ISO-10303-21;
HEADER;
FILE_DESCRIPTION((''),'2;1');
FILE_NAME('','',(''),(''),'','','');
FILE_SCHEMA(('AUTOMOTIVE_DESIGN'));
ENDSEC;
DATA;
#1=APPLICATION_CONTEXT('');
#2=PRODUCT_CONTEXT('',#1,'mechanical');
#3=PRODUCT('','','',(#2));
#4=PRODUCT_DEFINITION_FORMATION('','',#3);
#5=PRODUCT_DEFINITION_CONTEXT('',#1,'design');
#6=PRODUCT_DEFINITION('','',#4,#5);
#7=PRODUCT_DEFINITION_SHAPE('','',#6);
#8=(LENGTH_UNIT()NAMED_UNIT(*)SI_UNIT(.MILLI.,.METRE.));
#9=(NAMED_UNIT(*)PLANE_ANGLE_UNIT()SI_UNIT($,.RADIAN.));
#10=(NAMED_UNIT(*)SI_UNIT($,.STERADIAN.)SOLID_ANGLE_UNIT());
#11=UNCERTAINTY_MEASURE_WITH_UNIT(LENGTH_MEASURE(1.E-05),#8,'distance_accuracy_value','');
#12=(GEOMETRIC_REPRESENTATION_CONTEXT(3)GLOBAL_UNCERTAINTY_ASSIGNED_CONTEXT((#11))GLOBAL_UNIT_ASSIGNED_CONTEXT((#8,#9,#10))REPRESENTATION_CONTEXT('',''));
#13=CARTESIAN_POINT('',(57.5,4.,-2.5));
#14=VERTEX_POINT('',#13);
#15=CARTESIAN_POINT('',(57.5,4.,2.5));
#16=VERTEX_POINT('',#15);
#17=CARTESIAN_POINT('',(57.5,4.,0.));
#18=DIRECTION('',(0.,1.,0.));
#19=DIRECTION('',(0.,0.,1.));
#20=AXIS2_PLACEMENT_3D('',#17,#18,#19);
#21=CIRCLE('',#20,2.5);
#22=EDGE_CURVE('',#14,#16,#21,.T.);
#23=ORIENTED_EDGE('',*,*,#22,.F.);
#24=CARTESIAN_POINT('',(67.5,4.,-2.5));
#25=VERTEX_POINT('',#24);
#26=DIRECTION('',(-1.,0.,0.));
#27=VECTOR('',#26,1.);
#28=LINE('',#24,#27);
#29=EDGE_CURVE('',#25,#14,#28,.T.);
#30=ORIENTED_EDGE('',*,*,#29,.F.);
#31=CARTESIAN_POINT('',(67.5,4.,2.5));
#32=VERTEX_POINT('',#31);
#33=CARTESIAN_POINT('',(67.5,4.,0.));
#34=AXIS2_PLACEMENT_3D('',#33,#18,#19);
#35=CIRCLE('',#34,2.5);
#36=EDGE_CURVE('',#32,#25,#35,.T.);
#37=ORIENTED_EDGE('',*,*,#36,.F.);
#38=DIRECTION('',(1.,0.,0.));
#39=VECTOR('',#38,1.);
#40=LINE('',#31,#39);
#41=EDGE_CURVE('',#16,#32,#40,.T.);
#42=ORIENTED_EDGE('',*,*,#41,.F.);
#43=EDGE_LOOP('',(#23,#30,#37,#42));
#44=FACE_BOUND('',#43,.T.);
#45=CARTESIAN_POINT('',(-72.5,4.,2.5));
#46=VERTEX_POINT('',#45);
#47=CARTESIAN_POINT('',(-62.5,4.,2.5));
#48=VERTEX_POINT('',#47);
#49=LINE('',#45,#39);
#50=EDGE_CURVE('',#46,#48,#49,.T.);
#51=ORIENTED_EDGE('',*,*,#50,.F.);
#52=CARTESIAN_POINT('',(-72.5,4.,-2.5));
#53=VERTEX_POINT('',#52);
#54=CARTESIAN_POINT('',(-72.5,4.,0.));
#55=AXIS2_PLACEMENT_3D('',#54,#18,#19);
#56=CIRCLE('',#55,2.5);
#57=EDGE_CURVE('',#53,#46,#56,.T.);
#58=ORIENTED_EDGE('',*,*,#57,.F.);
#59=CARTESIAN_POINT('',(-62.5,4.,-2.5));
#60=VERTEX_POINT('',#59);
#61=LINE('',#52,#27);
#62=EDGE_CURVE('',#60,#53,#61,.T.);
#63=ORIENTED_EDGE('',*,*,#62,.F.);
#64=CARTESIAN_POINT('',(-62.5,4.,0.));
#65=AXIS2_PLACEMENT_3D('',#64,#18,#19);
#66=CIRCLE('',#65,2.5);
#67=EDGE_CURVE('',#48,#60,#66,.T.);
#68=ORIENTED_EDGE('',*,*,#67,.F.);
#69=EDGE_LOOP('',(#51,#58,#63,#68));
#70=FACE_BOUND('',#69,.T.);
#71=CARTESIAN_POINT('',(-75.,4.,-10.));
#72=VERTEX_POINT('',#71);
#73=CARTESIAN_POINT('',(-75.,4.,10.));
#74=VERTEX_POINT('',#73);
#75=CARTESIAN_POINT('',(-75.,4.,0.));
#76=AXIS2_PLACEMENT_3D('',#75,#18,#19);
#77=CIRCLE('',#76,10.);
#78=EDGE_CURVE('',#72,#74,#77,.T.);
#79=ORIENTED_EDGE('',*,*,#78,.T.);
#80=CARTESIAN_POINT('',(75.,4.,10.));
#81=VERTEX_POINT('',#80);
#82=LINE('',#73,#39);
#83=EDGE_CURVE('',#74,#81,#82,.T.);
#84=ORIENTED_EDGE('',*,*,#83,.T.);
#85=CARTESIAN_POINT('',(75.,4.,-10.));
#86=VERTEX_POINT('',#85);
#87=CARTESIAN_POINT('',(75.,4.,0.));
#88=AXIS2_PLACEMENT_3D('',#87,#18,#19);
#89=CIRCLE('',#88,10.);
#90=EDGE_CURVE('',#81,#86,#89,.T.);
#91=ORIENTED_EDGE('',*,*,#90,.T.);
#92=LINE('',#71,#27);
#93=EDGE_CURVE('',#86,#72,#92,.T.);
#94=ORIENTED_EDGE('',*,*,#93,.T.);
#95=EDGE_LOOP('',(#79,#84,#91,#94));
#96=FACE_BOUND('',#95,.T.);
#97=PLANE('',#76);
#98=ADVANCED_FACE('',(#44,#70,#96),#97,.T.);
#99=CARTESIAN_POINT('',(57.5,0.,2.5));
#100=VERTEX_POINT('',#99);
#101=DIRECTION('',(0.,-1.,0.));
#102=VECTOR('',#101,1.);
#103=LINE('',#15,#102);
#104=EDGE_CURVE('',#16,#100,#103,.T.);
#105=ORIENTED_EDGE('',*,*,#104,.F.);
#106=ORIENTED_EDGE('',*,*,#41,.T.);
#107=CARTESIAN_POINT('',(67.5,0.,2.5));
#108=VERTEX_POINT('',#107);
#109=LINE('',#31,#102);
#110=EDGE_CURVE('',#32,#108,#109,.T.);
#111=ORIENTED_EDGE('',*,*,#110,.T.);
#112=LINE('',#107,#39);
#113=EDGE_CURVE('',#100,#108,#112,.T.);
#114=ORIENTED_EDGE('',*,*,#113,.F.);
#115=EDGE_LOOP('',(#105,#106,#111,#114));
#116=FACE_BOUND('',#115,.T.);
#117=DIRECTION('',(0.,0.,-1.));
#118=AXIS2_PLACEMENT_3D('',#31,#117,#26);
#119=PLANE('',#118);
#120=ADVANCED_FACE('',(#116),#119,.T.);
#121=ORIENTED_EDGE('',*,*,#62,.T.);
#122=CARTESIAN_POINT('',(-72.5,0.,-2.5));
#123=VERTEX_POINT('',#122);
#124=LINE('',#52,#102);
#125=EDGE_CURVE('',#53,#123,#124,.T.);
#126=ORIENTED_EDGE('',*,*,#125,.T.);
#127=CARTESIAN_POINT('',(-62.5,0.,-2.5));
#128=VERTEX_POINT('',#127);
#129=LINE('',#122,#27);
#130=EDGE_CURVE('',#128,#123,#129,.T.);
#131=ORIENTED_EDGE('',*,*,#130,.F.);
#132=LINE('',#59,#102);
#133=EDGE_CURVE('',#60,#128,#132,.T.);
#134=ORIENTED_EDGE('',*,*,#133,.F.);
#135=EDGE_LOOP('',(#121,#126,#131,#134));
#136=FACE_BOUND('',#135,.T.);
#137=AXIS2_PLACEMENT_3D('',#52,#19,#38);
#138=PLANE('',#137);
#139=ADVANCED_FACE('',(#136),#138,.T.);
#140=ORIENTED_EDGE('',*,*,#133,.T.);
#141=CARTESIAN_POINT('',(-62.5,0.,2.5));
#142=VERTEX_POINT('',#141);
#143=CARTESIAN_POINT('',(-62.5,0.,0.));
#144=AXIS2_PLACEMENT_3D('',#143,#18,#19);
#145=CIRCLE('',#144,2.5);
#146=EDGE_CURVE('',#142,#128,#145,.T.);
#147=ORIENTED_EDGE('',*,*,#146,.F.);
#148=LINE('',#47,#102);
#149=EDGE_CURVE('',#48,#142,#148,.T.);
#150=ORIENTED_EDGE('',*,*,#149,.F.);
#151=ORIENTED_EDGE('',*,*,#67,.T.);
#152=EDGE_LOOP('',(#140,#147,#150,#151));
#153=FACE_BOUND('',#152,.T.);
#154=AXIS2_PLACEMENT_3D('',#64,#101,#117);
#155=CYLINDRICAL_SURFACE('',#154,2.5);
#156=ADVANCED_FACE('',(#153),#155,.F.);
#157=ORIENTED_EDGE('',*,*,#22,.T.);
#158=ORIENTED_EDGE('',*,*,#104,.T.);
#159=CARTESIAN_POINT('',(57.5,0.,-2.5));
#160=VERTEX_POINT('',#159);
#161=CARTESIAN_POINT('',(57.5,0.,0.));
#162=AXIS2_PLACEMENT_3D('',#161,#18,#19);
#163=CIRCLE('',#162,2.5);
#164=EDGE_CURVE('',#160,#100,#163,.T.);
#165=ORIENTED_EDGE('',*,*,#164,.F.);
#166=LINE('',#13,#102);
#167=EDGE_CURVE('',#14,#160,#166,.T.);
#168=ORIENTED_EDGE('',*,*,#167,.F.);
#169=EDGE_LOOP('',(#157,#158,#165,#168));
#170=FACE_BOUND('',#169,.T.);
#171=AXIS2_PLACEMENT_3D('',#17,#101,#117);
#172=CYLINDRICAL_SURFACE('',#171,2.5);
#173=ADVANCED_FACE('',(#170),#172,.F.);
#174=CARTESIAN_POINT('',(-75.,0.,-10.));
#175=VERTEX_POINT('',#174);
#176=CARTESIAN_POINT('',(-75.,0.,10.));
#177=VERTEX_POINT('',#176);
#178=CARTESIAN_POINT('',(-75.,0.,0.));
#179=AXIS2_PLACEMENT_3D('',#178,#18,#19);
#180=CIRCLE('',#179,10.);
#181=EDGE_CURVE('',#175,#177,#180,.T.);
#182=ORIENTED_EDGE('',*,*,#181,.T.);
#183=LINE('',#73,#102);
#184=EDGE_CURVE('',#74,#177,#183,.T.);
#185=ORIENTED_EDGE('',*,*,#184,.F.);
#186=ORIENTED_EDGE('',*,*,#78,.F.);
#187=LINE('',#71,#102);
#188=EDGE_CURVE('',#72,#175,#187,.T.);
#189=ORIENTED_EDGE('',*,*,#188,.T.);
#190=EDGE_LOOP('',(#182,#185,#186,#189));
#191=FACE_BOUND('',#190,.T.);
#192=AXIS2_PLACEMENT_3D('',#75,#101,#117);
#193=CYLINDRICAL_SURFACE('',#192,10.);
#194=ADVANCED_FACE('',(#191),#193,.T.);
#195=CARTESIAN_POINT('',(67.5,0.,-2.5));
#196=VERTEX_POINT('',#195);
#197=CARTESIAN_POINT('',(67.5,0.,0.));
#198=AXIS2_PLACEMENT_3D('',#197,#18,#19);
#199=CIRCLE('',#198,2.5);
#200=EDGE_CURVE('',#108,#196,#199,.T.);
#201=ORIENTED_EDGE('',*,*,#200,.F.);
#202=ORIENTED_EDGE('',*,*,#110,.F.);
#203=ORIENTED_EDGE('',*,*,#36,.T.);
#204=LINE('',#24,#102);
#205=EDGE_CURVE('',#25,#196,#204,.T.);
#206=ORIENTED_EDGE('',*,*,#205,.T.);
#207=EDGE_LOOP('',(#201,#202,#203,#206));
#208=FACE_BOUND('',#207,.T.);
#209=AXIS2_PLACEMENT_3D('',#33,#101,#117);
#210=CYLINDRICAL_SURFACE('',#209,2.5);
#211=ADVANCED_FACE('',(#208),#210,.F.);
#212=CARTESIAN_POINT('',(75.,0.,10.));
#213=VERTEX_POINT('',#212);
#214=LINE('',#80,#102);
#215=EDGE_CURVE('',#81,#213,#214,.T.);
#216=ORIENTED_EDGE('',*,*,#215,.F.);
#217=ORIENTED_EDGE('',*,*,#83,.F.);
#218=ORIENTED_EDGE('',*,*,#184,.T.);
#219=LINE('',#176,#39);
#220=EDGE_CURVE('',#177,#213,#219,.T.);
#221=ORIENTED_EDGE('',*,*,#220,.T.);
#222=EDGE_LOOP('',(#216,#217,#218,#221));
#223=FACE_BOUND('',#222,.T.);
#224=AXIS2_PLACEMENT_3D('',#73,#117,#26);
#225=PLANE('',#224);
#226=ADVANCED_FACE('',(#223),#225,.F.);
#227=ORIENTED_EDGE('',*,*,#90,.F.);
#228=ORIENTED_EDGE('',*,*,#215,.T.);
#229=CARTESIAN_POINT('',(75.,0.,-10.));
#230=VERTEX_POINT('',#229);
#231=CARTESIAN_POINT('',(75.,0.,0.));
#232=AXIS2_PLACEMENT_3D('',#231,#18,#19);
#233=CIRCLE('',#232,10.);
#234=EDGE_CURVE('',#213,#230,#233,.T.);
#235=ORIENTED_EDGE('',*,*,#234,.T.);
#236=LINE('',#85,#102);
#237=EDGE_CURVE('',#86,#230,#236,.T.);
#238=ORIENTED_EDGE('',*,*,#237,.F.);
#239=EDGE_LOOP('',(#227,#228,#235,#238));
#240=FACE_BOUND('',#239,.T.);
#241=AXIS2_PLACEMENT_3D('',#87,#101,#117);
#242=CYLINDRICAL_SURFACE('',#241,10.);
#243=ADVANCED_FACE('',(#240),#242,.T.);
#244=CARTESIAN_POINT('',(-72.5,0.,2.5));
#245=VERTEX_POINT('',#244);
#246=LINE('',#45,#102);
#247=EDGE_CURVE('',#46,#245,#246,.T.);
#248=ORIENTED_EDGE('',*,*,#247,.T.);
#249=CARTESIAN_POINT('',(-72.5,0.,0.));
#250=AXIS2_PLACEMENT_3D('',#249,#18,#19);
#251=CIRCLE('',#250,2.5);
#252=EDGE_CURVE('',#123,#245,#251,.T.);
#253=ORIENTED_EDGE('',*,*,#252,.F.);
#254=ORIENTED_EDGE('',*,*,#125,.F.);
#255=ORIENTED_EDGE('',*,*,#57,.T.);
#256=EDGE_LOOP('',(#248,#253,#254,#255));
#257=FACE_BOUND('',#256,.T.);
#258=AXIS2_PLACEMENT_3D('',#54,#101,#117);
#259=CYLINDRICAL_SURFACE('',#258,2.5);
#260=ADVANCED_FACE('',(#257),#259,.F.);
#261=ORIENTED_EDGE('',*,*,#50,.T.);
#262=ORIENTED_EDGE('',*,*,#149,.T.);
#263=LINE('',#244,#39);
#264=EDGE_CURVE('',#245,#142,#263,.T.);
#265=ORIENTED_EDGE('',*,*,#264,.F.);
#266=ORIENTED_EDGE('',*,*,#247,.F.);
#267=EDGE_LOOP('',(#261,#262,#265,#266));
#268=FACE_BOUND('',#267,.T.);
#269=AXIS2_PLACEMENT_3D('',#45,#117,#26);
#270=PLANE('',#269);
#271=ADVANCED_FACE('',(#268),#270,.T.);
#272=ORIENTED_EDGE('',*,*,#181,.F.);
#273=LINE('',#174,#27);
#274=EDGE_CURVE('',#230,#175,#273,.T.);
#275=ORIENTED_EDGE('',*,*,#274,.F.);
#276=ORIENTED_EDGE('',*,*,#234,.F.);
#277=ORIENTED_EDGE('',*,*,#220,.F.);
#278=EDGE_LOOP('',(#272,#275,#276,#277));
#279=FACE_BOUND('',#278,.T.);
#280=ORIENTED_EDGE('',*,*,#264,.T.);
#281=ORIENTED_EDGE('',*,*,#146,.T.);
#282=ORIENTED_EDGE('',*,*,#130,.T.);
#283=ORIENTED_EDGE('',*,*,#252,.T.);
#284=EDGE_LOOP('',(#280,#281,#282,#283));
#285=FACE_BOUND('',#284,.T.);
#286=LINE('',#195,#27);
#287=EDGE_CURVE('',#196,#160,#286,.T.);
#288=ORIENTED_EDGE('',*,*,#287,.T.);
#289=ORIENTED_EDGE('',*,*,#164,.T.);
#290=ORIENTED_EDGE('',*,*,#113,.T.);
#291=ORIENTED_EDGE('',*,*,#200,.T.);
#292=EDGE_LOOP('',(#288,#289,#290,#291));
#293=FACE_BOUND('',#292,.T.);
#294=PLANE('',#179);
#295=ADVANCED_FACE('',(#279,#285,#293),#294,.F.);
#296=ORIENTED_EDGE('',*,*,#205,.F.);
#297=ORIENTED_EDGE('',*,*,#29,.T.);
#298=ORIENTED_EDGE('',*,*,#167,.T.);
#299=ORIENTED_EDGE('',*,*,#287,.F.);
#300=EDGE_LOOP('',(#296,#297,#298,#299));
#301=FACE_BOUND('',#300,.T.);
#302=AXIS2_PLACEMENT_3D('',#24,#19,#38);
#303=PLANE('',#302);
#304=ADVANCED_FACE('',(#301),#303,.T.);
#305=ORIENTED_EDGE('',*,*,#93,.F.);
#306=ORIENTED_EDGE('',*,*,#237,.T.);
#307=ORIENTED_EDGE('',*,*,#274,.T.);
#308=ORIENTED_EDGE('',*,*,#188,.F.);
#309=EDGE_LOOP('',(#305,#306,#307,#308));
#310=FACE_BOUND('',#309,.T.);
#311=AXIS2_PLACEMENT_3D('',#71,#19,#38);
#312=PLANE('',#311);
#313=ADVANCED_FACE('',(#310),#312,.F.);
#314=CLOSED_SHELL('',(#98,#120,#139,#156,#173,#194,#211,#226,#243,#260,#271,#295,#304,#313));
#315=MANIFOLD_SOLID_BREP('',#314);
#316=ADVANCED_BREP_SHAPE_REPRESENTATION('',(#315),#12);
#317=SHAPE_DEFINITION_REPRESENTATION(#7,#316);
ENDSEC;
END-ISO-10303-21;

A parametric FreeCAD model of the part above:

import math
import FreeCAD as App
import Part
import Sketcher

V = App.Vector
Q = App.Units.Quantity

doc = App.newDocument("Part")
body = doc.addObject("PartDesign::Body", "Body")

# Sketch on XZ plane
sketch1 = body.newObject("Sketcher::SketchObject", "Sketch")
sketch1.AttachmentSupport = (doc.getObject("XZ_Plane"), [""])
sketch1.MapMode = "FlatFace"
sketch1.addGeometry([
    Part.LineSegment(V(75, -10, 0), V(-75, -10, 0)),  # 0
    Part.ArcOfCircle(Part.Circle(V(-75, 0, 0), V(0, 0, 1), 10), math.radians(90), math.radians(270)),  # 1
    Part.LineSegment(V(-75, 10, 0), V(75, 10, 0)),  # 2
    Part.ArcOfCircle(Part.Circle(V(75, 0, 0), V(0, 0, 1), 10), math.radians(-90), math.radians(90)),  # 3
    Part.LineSegment(V(67.5, 2.5, 0), V(57.5, 2.5, 0)),  # 4
    Part.ArcOfCircle(Part.Circle(V(57.5, 0, 0), V(0, 0, 1), 2.5), math.radians(90), math.radians(270)),  # 5
    Part.LineSegment(V(57.5, -2.5, 0), V(67.5, -2.5, 0)),  # 6
    Part.ArcOfCircle(Part.Circle(V(67.5, 0, 0), V(0, 0, 1), 2.5), math.radians(-90), math.radians(90)),  # 7
    Part.LineSegment(V(-72.5, -2.5, 0), V(-62.5, -2.5, 0)),  # 8
    Part.ArcOfCircle(Part.Circle(V(-62.5, 0, 0), V(0, 0, 1), 2.5), math.radians(-90), math.radians(90)),  # 9
    Part.LineSegment(V(-62.5, 2.5, 0), V(-72.5, 2.5, 0)),  # 10
    Part.ArcOfCircle(Part.Circle(V(-72.5, 0, 0), V(0, 0, 1), 2.5), math.radians(90), math.radians(270)),  # 11
], False)
sketch1.addConstraint([
    Sketcher.Constraint("Tangent", 0, 2, 1, 2),
    Sketcher.Constraint("Tangent", 1, 1, 2, 1),
    Sketcher.Constraint("Tangent", 2, 2, 3, 2),
    Sketcher.Constraint("Tangent", 3, 1, 0, 1),
    Sketcher.Constraint("Tangent", 4, 2, 5, 1),
    Sketcher.Constraint("Tangent", 5, 2, 6, 1),
    Sketcher.Constraint("Tangent", 6, 2, 7, 1),
    Sketcher.Constraint("Tangent", 7, 2, 4, 1),
    Sketcher.Constraint("Tangent", 8, 2, 9, 1),
    Sketcher.Constraint("Tangent", 9, 2, 10, 1),
    Sketcher.Constraint("Tangent", 10, 2, 11, 1),
    Sketcher.Constraint("Tangent", 11, 2, 8, 1),
    Sketcher.Constraint("Horizontal", 0),
    Sketcher.Constraint("Horizontal", 2),
    Sketcher.Constraint("Horizontal", 4),
    Sketcher.Constraint("Horizontal", 6),
    Sketcher.Constraint("Horizontal", 8),
    Sketcher.Constraint("Horizontal", 10),
    Sketcher.Constraint("Equal", 7, 9),
    Sketcher.Constraint("Symmetric", 1, 3, 3, 3, -1, 1),
    Sketcher.Constraint("PointOnObject", 5, 3, -1),
    Sketcher.Constraint("PointOnObject", 9, 3, -1),
    Sketcher.Constraint("Equal", 6, 8),
    Sketcher.Constraint("Radius", 1, Q("10 mm")),
    Sketcher.Constraint("Radius", 5, Q("2.5 mm")),
    Sketcher.Constraint("DistanceX", 0, 2, 0, 1, Q("150 mm")),
    Sketcher.Constraint("DistanceX", 4, 2, 4, 1, Q("10 mm")),
    Sketcher.Constraint("DistanceX", 9, 3, 5, 3, Q("120 mm")),
    Sketcher.Constraint("DistanceX", -1, 1, 5, 3, Q("57.5 mm")),
])
pad1 = body.newObject("PartDesign::Pad", "Pad")
pad1.Profile = sketch1
pad1.Length = 4
pad1.Reversed = True

doc.recompute()
